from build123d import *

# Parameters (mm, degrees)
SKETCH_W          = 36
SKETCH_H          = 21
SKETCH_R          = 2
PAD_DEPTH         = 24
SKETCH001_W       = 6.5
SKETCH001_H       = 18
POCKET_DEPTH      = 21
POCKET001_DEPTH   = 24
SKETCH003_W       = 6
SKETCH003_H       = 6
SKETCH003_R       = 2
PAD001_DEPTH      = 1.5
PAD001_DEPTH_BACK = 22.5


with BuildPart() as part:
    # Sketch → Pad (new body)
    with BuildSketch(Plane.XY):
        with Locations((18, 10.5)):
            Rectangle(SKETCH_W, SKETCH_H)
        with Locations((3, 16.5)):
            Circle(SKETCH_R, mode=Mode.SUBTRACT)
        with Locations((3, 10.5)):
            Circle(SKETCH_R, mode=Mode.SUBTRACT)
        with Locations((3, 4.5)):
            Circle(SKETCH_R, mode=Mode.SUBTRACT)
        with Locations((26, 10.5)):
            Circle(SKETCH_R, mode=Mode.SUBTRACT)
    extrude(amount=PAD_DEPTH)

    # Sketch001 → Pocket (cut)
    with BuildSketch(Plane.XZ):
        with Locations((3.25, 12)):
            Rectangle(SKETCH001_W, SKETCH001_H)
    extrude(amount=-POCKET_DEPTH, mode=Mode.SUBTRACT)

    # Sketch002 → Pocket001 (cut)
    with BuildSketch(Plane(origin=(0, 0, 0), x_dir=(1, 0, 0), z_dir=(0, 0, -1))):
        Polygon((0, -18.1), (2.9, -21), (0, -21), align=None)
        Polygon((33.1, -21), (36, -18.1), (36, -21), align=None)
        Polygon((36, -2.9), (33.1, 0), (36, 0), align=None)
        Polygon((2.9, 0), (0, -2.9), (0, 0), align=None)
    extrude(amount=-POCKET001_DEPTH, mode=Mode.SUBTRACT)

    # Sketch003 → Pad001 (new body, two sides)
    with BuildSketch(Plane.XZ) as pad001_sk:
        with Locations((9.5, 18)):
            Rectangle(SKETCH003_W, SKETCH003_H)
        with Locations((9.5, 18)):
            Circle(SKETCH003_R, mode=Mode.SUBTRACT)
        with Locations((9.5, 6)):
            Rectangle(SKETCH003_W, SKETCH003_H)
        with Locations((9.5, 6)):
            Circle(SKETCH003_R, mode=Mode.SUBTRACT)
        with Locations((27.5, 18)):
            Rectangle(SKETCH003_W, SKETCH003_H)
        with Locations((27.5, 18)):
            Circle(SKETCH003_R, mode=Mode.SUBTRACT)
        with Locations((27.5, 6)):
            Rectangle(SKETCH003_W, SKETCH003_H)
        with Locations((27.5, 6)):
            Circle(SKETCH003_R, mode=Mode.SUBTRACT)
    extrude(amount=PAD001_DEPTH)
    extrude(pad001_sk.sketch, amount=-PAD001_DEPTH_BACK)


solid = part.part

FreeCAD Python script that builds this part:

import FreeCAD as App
import Part
import Sketcher
Q = App.Units.Quantity

doc = App.newDocument("Part")
params = doc.addObject("Spreadsheet::Sheet", "Params")
for row, (alias, value) in enumerate([
    ("sketch1_diameter", "4 mm"),
    ("sketch1_width", "36 mm"),
    ("sketch1_height", "21 mm"),
    ("pad1_length", "24 mm"),
    ("sketch2_height", "18 mm"),
    ("sketch2_width", "6.5 mm"),
    ("pocket1_length", "21 mm"),
    ("sketch3_width", "2.9 mm"),
    ("pocket2_length", "24 mm"),
    ("sketch4_diameter", "4 mm"),
    ("sketch4_width", "6 mm"),
    ("pad2_length", "1.5 mm"),
    ("pad2_length2", "22.5 mm"),
], start=1):
    params.set(f"A{row}", alias)
    params.set(f"B{row}", "=" + value)
    params.setAlias(f"B{row}", alias)

body = doc.addObject("PartDesign::Body", "Body")

# Sketch on XY plane
sketch1 = body.newObject("Sketcher::SketchObject", "Sketch")
sketch1.AttachmentSupport = (doc.getObject("XY_Plane"), [""])
sketch1.MapMode = "FlatFace"
sketch1.addGeometry([
    Part.LineSegment(App.Vector(0, 21, 0), App.Vector(0, 0, 0)),  # 0
    Part.LineSegment(App.Vector(0, 0, 0), App.Vector(36, 0, 0)),  # 1
    Part.LineSegment(App.Vector(36, 0, 0), App.Vector(36, 21, 0)),  # 2
    Part.LineSegment(App.Vector(36, 21, 0), App.Vector(0, 21, 0)),  # 3
    Part.Circle(App.Vector(3, 4.5, 0), App.Vector(0, 0, 1), 2),  # 4
    Part.Circle(App.Vector(3, 10.5, 0), App.Vector(0, 0, 1), 2),  # 5
    Part.Circle(App.Vector(3, 16.5, 0), App.Vector(0, 0, 1), 2),  # 6
    Part.Circle(App.Vector(26, 10.5, 0), App.Vector(0, 0, 1), 2),  # 7
], False)
sketch1.addConstraint([
    Sketcher.Constraint("Coincident", 0, 2, 1, 1),
    Sketcher.Constraint("Coincident", 1, 2, 2, 1),
    Sketcher.Constraint("Coincident", 2, 2, 3, 1),
    Sketcher.Constraint("Coincident", 3, 2, 0, 1),
    Sketcher.Constraint("Vertical", 0),
    Sketcher.Constraint("Horizontal", 1),
    Sketcher.Constraint("Vertical", 2),
    Sketcher.Constraint("Horizontal", 3),
    Sketcher.Constraint("Coincident", 0, 2, -1, 1),
    Sketcher.Constraint("Equal", 4, 5),
    Sketcher.Constraint("Equal", 5, 6),
    Sketcher.Constraint("Equal", 6, 7),
    Sketcher.Constraint("Horizontal", 5, 3, 7, 3),
    Sketcher.Constraint("Vertical", 4, 3, 5, 3),
    Sketcher.Constraint("Vertical", 5, 3, 6, 3),
    Sketcher.Constraint("Diameter", 4, Q("4 mm")),
    Sketcher.Constraint("DistanceX", 1, 1, 1, 2, Q("36 mm")),
    Sketcher.Constraint("DistanceY", 0, 2, 0, 1, Q("21 mm")),
    Sketcher.Constraint("DistanceX", -1, 1, 4, 3, Q("3 mm")),
    Sketcher.Constraint("DistanceX", -1, 1, 7, 3, Q("26 mm")),
    Sketcher.Constraint("DistanceY", 4, 3, 5, 3, Q("6 mm")),
    Sketcher.Constraint("DistanceY", 5, 3, 6, 3, Q("6 mm")),
    Sketcher.Constraint("DistanceY", -1, 1, 4, 3, Q("4.5 mm")),
])
sketch1.setExpression("Constraints[15]", "Params.sketch1_diameter")
sketch1.setExpression("Constraints[16]", "Params.sketch1_width")
sketch1.setExpression("Constraints[17]", "Params.sketch1_height")
pad1 = body.newObject("PartDesign::Pad", "Pad")
pad1.Profile = sketch1
pad1.setExpression("Length", "Params.pad1_length")

# Sketch on XZ plane
sketch2 = body.newObject("Sketcher::SketchObject", "Sketch001")
sketch2.AttachmentSupport = (doc.getObject("XZ_Plane"), [""])
sketch2.MapMode = "FlatFace"
sketch2.addGeometry([
    Part.LineSegment(App.Vector(0, 21, 0), App.Vector(0, 3, 0)),
    Part.LineSegment(App.Vector(0, 3, 0), App.Vector(6, 3, 0)),
    Part.LineSegment(App.Vector(6, 3, 0), App.Vector(6, 21, 0)),
    Part.LineSegment(App.Vector(6, 21, 0), App.Vector(0, 21, 0)),
], False)
sketch2.addConstraint([
    Sketcher.Constraint("Coincident", 0, 2, 1, 1),
    Sketcher.Constraint("Coincident", 1, 2, 2, 1),
    Sketcher.Constraint("Coincident", 2, 2, 3, 1),
    Sketcher.Constraint("Coincident", 3, 2, 0, 1),
    Sketcher.Constraint("Vertical", 0),
    Sketcher.Constraint("Horizontal", 1),
    Sketcher.Constraint("Vertical", 2),
    Sketcher.Constraint("Horizontal", 3),
    Sketcher.Constraint("PointOnObject", 0, 2, -2),
    Sketcher.Constraint("DistanceY", 0, 2, 0, 1, Q("18 mm")),
    Sketcher.Constraint("DistanceX", 1, 1, 1, 2, Q("6.5 mm")),
    Sketcher.Constraint("DistanceY", -1, 1, 0, 2, Q("3 mm")),
])
sketch2.setExpression("Constraints[9]", "Params.sketch2_height")
sketch2.setExpression("Constraints[10]", "Params.sketch2_width")
pocket1 = body.newObject("PartDesign::Pocket", "Pocket")
pocket1.Profile = sketch2
pocket1.setExpression("Length", "Params.pocket1_length")

# Sketch on XY plane
sketch3 = body.newObject("Sketcher::SketchObject", "Sketch002")
sketch3.AttachmentSupport = (doc.getObject("XY_Plane"), [""])
sketch3.MapMode = "FlatFace"
sketch3.addGeometry([
    Part.LineSegment(App.Vector(2.9, 21, 0), App.Vector(0, 18.1, 0)),  # 0
    Part.LineSegment(App.Vector(0, 18.1, 0), App.Vector(0, 21, 0)),  # 1
    Part.LineSegment(App.Vector(0, 21, 0), App.Vector(2.9, 21, 0)),  # 2
    Part.LineSegment(App.Vector(36, 18.1, 0), App.Vector(33.1, 21, 0)),  # 3
    Part.LineSegment(App.Vector(33.1, 21, 0), App.Vector(36, 21, 0)),  # 4
    Part.LineSegment(App.Vector(36, 21, 0), App.Vector(36, 18.1, 0)),  # 5
    Part.LineSegment(App.Vector(33.1, 0, 0), App.Vector(36, 2.9, 0)),  # 6
    Part.LineSegment(App.Vector(36, 2.9, 0), App.Vector(36, 0, 0)),  # 7
    Part.LineSegment(App.Vector(36, 0, 0), App.Vector(33.1, 0, 0)),  # 8
    Part.LineSegment(App.Vector(0, 2.9, 0), App.Vector(2.9, 0, 0)),  # 9
    Part.LineSegment(App.Vector(2.9, 0, 0), App.Vector(0, 0, 0)),  # 10
    Part.LineSegment(App.Vector(0, 0, 0), App.Vector(0, 2.9, 0)),  # 11
], False)
sketch3.addConstraint([
    Sketcher.Constraint("Coincident", 0, 2, 1, 1),
    Sketcher.Constraint("Coincident", 1, 2, 2, 1),
    Sketcher.Constraint("Coincident", 2, 2, 0, 1),
    Sketcher.Constraint("Coincident", 3, 2, 4, 1),
    Sketcher.Constraint("Coincident", 4, 2, 5, 1),
    Sketcher.Constraint("Coincident", 5, 2, 3, 1),
    Sketcher.Constraint("Coincident", 6, 2, 7, 1),
    Sketcher.Constraint("Coincident", 7, 2, 8, 1),
    Sketcher.Constraint("Coincident", 8, 2, 6, 1),
    Sketcher.Constraint("Coincident", 9, 2, 10, 1),
    Sketcher.Constraint("Coincident", 10, 2, 11, 1),
    Sketcher.Constraint("Coincident", 11, 2, 9, 1),
    Sketcher.Constraint("Vertical", 1),
    Sketcher.Constraint("Horizontal", 2),
    Sketcher.Constraint("Horizontal", 4),
    Sketcher.Constraint("Vertical", 5),
    Sketcher.Constraint("Vertical", 7),
    Sketcher.Constraint("Horizontal", 8),
    Sketcher.Constraint("Horizontal", 10),
    Sketcher.Constraint("Vertical", 11),
    Sketcher.Constraint("Coincident", 10, 2, -1, 1),
    Sketcher.Constraint("PointOnObject", 0, 2, -2),
    Sketcher.Constraint("PointOnObject", 7, 2, -1),
    Sketcher.Constraint("Perpendicular", 0, 3),
    Sketcher.Constraint("Perpendicular", 3, 6),
    Sketcher.Constraint("Perpendicular", 6, 9),
    Sketcher.Constraint("Horizontal", 2, 2, 3, 2),
    Sketcher.Constraint("Horizontal", 0, 2, 5, 2),
    Sketcher.Constraint("Horizontal", 6, 2, 11, 2),
    Sketcher.Constraint("Vertical", 5, 2, 6, 2),
    Sketcher.Constraint("Vertical", 3, 2, 8, 2),
    Sketcher.Constraint("Vertical", 2, 2, 9, 2),
    Sketcher.Constraint("DistanceX", 2, 1, 2, 2, Q("2.9 mm")),
    Sketcher.Constraint("DistanceY", -1, 1, 1, 2, Q("21 mm")),
    Sketcher.Constraint("DistanceX", -1, 1, 4, 2, Q("36 mm")),
])
sketch3.setExpression("Constraints[32]", "Params.sketch3_width")
pocket2 = body.newObject("PartDesign::Pocket", "Pocket001")
pocket2.Profile = sketch3
pocket2.setExpression("Length", "Params.pocket2_length")
pocket2.Reversed = True

# Sketch on XZ plane
sketch4 = body.newObject("Sketcher::SketchObject", "Sketch003")
sketch4.AttachmentSupport = (doc.getObject("XZ_Plane"), [""])
sketch4.MapMode = "FlatFace"
sketch4.addGeometry([
    Part.LineSegment(App.Vector(6.5, 21, 0), App.Vector(6.5, 15, 0)),  # 0
    Part.LineSegment(App.Vector(6.5, 15, 0), App.Vector(12.5, 15, 0)),  # 1
    Part.LineSegment(App.Vector(12.5, 15, 0), App.Vector(12.5, 21, 0)),  # 2
    Part.LineSegment(App.Vector(12.5, 21, 0), App.Vector(6.5, 21, 0)),  # 3
    Part.Circle(App.Vector(9.5, 18, 0), App.Vector(0, 0, 1), 2),  # 4
    Part.LineSegment(App.Vector(6.5, 9, 0), App.Vector(6.5, 3, 0)),  # 5
    Part.LineSegment(App.Vector(6.5, 3, 0), App.Vector(12.5, 3, 0)),  # 6
    Part.LineSegment(App.Vector(12.5, 3, 0), App.Vector(12.5, 9, 0)),  # 7
    Part.LineSegment(App.Vector(12.5, 9, 0), App.Vector(6.5, 9, 0)),  # 8
    Part.Circle(App.Vector(9.5, 6, 0), App.Vector(0, 0, 1), 2),  # 9
    Part.LineSegment(App.Vector(24.5, 21, 0), App.Vector(24.5, 15, 0)),  # 10
    Part.LineSegment(App.Vector(24.5, 15, 0), App.Vector(30.5, 15, 0)),  # 11
    Part.LineSegment(App.Vector(30.5, 15, 0), App.Vector(30.5, 21, 0)),  # 12
    Part.LineSegment(App.Vector(30.5, 21, 0), App.Vector(24.5, 21, 0)),  # 13
    Part.Circle(App.Vector(27.5, 18, 0), App.Vector(0, 0, 1), 2),  # 14
    Part.LineSegment(App.Vector(24.5, 9, 0), App.Vector(24.5, 3, 0)),  # 15
    Part.LineSegment(App.Vector(24.5, 3, 0), App.Vector(30.5, 3, 0)),  # 16
    Part.LineSegment(App.Vector(30.5, 3, 0), App.Vector(30.5, 9, 0)),  # 17
    Part.LineSegment(App.Vector(30.5, 9, 0), App.Vector(24.5, 9, 0)),  # 18
    Part.Circle(App.Vector(27.5, 6, 0), App.Vector(0, 0, 1), 2),  # 19
], False)
sketch4.addConstraint([
    Sketcher.Constraint("Coincident", 0, 2, 1, 1),
    Sketcher.Constraint("Coincident", 1, 2, 2, 1),
    Sketcher.Constraint("Coincident", 2, 2, 3, 1),
    Sketcher.Constraint("Coincident", 3, 2, 0, 1),
    Sketcher.Constraint("Coincident", 5, 2, 6, 1),
    Sketcher.Constraint("Coincident", 6, 2, 7, 1),
    Sketcher.Constraint("Coincident", 7, 2, 8, 1),
    Sketcher.Constraint("Coincident", 8, 2, 5, 1),
    Sketcher.Constraint("Coincident", 10, 2, 11, 1),
    Sketcher.Constraint("Coincident", 11, 2, 12, 1),
    Sketcher.Constraint("Coincident", 12, 2, 13, 1),
    Sketcher.Constraint("Coincident", 13, 2, 10, 1),
    Sketcher.Constraint("Coincident", 15, 2, 16, 1),
    Sketcher.Constraint("Coincident", 16, 2, 17, 1),
    Sketcher.Constraint("Coincident", 17, 2, 18, 1),
    Sketcher.Constraint("Coincident", 18, 2, 15, 1),
    Sketcher.Constraint("Vertical", 0),
    Sketcher.Constraint("Horizontal", 1),
    Sketcher.Constraint("Vertical", 2),
    Sketcher.Constraint("Horizontal", 3),
    Sketcher.Constraint("Vertical", 5),
    Sketcher.Constraint("Horizontal", 6),
    Sketcher.Constraint("Vertical", 7),
    Sketcher.Constraint("Horizontal", 8),
    Sketcher.Constraint("Vertical", 10),
    Sketcher.Constraint("Horizontal", 11),
    Sketcher.Constraint("Vertical", 12),
    Sketcher.Constraint("Horizontal", 13),
    Sketcher.Constraint("Vertical", 15),
    Sketcher.Constraint("Horizontal", 16),
    Sketcher.Constraint("Vertical", 17),
    Sketcher.Constraint("Horizontal", 18),
    Sketcher.Constraint("Equal", 4, 9),
    Sketcher.Constraint("Equal", 9, 14),
    Sketcher.Constraint("Equal", 14, 19),
    Sketcher.Constraint("Horizontal", 4, 3, 14, 3),
    Sketcher.Constraint("Horizontal", 9, 3, 19, 3),
    Sketcher.Constraint("Horizontal", 1, 2, 10, 2),
    Sketcher.Constraint("Horizontal", 3, 2, 12, 2),
    Sketcher.Constraint("Horizontal", 6, 2, 15, 2),
    Sketcher.Constraint("Horizontal", 8, 2, 17, 2),
    Sketcher.Constraint("Vertical", 4, 3, 9, 3),
    Sketcher.Constraint("Vertical", 14, 3, 19, 3),
    Sketcher.Constraint("Vertical", 3, 2, 5, 2),
    Sketcher.Constraint("Vertical", 2, 2, 6, 2),
    Sketcher.Constraint("Vertical", 13, 2, 15, 2),
    Sketcher.Constraint("Vertical", 12, 2, 16, 2),
    Sketcher.Constraint("Equal", 8, 11),
    Sketcher.Constraint("Equal", 18, 0),
    Sketcher.Constraint("Equal", 2, 5),
    Sketcher.Constraint("Diameter", 4, Q("4 mm")),
    Sketcher.Constraint("DistanceX", 1, 1, 1, 2, Q("6 mm")),
    Sketcher.Constraint("DistanceY", -1, 1, 4, 3, Q("18 mm")),
    Sketcher.Constraint("DistanceY", -1, 1, 9, 3, Q("6 mm")),
    Sketcher.Constraint("DistanceY", -1, 1, 0, 2, Q("15 mm")),
    Sketcher.Constraint("DistanceY", -1, 1, 5, 2, Q("3 mm")),
    Sketcher.Constraint("DistanceX", 4, 3, 14, 3, Q("18 mm")),
    Sketcher.Constraint("DistanceX", 0, 2, 4, 3, Q("3 mm")),
    Sketcher.Constraint("DistanceX", 10, 2, 14, 3, Q("3 mm")),
    Sketcher.Constraint("DistanceX", -1, 1, 4, 3, Q("9.5 mm")),
])
sketch4.setExpression("Constraints[50]", "Params.sketch4_diameter")
sketch4.setExpression("Constraints[51]", "Params.sketch4_width")
pad2 = body.newObject("PartDesign::Pad", "Pad001")
pad2.Profile = sketch4
pad2.Type = "TwoLengths"
pad2.setExpression("Length", "Params.pad2_length")
pad2.setExpression("Length2", "Params.pad2_length2")

doc.recompute()
